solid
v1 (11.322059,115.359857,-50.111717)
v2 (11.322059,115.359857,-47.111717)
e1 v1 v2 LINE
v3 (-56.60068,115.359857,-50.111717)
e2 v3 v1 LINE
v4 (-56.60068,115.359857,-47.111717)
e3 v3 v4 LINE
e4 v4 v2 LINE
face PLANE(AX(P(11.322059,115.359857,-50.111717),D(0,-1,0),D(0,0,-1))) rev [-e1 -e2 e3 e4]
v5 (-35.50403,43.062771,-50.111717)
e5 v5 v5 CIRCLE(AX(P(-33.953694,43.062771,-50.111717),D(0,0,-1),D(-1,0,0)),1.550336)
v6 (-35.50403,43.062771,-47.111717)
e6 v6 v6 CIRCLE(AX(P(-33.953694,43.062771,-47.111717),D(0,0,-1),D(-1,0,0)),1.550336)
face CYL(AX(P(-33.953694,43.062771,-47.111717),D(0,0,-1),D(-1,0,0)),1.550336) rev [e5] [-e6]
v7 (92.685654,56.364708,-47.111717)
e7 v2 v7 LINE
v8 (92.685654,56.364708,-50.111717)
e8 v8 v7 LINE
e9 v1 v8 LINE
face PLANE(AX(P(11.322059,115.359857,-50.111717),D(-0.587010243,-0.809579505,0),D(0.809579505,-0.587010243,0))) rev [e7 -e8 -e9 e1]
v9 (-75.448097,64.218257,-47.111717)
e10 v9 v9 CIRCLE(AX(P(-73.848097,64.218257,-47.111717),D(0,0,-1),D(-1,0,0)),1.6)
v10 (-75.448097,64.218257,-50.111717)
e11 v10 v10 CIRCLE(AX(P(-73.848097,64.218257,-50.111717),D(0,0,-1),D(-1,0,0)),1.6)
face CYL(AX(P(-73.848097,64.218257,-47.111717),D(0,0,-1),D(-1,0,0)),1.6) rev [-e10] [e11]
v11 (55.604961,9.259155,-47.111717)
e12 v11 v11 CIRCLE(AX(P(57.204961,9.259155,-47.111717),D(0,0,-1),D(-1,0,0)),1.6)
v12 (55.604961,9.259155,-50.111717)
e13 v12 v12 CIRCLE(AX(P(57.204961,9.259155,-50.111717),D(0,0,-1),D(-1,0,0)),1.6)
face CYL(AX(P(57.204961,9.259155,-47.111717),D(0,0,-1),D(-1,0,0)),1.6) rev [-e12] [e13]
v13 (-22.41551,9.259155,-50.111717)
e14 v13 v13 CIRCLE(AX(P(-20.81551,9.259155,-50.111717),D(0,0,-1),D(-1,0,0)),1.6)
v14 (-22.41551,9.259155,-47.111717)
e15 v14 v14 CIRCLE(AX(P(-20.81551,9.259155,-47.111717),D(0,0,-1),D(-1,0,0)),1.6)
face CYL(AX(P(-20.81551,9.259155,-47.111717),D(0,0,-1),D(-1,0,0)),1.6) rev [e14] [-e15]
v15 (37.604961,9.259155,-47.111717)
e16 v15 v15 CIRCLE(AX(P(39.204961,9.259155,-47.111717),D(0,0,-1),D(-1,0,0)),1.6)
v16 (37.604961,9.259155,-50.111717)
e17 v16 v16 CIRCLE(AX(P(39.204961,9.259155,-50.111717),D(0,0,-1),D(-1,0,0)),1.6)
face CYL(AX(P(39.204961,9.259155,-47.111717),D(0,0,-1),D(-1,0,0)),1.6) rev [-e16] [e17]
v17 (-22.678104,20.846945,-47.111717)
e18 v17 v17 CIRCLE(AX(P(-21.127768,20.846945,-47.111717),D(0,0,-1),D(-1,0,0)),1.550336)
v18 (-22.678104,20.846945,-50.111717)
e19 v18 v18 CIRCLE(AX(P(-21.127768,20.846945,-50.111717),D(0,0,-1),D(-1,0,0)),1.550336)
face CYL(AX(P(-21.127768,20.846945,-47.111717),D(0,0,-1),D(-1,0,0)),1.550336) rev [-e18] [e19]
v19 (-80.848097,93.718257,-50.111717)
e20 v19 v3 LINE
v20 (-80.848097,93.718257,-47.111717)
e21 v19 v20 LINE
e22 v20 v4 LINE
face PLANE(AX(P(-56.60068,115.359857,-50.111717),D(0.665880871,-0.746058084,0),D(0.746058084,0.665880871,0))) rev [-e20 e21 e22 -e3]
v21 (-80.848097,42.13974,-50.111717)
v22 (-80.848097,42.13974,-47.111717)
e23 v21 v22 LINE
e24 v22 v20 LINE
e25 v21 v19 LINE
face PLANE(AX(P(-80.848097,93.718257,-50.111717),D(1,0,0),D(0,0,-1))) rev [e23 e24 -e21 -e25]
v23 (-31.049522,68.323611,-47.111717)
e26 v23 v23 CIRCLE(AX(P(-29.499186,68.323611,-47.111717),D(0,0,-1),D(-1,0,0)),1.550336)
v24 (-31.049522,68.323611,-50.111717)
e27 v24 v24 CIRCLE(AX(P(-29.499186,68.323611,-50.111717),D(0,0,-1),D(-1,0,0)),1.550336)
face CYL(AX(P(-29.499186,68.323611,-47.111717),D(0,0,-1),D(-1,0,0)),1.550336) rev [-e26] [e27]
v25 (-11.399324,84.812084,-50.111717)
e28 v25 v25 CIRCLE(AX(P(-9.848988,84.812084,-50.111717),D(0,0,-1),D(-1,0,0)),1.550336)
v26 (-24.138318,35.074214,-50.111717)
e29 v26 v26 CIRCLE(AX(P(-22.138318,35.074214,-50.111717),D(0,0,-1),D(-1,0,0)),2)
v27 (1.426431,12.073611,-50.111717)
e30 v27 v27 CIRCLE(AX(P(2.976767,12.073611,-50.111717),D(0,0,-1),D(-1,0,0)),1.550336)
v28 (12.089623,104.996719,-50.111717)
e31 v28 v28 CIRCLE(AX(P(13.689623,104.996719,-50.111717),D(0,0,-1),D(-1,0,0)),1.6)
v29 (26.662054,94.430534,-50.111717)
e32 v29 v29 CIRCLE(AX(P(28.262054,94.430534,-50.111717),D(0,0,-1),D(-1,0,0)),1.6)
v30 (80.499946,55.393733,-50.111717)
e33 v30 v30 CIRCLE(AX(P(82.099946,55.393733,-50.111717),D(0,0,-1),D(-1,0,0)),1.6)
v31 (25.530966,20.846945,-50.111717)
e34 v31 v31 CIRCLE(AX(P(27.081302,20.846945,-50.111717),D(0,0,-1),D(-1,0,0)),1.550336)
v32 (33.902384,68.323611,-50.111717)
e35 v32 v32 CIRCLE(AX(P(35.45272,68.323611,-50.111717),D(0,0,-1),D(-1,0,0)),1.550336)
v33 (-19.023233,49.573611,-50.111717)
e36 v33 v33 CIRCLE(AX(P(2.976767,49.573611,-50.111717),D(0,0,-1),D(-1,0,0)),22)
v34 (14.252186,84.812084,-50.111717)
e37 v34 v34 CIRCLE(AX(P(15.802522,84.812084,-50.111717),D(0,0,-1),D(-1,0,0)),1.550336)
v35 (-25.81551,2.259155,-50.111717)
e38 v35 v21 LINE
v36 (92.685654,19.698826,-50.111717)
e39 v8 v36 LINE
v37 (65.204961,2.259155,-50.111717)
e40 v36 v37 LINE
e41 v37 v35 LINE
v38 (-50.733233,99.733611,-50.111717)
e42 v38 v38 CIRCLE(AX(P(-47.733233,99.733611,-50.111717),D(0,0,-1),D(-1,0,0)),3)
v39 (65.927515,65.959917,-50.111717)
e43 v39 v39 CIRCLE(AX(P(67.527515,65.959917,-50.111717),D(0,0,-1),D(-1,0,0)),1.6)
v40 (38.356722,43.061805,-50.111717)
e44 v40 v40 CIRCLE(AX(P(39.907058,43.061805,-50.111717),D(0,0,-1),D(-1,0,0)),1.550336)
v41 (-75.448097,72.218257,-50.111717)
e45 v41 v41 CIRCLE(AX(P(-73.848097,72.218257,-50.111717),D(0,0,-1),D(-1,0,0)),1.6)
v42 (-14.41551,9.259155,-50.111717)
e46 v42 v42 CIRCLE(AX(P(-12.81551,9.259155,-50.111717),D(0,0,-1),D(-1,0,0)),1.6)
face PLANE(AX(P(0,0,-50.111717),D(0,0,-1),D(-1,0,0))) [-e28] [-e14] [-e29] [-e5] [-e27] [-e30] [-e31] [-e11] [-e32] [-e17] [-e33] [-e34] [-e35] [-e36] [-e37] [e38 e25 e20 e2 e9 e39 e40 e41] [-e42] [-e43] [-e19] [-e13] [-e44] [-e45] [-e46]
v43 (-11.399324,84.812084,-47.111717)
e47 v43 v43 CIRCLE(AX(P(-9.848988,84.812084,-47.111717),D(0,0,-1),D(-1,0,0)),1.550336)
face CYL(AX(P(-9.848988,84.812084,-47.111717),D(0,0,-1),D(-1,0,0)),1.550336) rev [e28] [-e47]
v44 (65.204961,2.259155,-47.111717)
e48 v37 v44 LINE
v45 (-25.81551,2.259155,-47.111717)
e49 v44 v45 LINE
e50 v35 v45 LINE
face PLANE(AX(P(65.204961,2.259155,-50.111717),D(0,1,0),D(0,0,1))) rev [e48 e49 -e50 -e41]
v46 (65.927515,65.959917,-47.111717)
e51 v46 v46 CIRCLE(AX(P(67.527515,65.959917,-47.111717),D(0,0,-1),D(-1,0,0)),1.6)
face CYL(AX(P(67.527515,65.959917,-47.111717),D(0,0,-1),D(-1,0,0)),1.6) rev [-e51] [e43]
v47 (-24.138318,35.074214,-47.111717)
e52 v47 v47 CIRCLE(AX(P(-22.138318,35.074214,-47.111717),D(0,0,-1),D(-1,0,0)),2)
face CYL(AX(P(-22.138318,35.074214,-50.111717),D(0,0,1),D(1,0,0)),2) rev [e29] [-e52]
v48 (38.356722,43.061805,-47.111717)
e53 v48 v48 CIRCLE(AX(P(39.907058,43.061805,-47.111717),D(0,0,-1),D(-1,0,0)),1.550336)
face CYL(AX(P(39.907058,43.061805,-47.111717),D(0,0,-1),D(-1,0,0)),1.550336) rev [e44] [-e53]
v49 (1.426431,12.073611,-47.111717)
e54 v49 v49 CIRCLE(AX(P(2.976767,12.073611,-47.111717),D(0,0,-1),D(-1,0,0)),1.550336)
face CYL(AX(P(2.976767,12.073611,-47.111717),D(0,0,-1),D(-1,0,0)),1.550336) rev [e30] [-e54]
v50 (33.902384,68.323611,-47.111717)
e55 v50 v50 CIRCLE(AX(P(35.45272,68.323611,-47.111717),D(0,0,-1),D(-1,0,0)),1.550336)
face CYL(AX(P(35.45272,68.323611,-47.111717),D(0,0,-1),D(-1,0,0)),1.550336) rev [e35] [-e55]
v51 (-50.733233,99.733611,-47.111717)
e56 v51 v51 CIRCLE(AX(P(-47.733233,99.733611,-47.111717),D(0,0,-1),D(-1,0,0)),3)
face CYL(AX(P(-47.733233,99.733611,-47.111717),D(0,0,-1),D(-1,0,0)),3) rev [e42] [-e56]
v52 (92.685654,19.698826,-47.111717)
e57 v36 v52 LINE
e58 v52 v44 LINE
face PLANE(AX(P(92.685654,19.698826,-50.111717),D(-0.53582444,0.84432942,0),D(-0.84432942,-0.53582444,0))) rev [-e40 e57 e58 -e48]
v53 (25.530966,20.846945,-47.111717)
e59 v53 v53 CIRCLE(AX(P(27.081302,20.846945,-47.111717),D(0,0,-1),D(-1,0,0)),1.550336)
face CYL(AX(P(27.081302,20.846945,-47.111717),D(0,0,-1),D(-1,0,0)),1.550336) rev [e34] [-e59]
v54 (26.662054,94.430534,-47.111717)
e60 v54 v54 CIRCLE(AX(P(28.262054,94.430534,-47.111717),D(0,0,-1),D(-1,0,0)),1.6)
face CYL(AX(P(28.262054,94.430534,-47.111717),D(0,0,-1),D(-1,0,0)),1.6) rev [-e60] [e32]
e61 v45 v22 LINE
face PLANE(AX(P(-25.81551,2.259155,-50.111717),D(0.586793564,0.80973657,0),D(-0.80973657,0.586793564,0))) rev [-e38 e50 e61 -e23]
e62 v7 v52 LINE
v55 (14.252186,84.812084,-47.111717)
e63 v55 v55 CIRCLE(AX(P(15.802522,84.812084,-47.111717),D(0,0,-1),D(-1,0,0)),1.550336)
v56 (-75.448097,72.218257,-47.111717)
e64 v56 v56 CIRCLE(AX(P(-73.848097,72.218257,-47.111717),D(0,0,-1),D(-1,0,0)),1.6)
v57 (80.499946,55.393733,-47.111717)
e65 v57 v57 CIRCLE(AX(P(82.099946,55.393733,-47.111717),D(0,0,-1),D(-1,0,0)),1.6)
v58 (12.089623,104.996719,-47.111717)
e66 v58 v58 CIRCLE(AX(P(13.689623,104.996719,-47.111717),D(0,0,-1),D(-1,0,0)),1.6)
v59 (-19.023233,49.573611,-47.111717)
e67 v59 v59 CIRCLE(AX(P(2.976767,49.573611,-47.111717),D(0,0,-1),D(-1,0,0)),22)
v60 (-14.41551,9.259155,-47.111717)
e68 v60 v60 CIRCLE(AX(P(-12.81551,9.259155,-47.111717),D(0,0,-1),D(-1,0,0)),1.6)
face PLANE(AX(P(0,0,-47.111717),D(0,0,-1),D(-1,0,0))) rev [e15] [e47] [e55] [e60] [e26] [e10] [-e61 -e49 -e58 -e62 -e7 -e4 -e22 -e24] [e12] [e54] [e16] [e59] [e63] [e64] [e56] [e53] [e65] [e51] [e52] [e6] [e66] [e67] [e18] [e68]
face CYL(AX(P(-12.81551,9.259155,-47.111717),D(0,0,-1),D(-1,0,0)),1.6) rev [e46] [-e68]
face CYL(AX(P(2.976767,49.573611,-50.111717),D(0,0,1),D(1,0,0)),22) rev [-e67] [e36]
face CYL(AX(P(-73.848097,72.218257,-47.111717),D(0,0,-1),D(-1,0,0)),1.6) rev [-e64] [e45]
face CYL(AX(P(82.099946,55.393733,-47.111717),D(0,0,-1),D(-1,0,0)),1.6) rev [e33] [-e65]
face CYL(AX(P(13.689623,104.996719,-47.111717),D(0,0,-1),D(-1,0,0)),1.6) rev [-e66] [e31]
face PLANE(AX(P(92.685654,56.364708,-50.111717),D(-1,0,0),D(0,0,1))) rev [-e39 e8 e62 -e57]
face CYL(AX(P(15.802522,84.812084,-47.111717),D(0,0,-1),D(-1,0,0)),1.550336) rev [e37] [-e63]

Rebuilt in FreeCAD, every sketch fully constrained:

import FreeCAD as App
import Part
import Sketcher

V = App.Vector

doc = App.newDocument("Part")
body = doc.addObject("PartDesign::Body", "Body")

# Sketch on XY plane
sketch1 = doc.addObject("Sketcher::SketchObject", "Sketch")
body.addObject(sketch1)
sketch1.AttachmentSupport = (doc.XY_Plane, [""])
sketch1.MapMode = "FlatFace"
sketch1.AttachmentOffset = App.Placement(V(0, 0, -47.111717), App.Rotation())
sketch1.addGeometry(Part.LineSegment(V(65.2, 2.3, 0), V(-25.8, 2.3, 0)), False)
sketch1.addGeometry(Part.LineSegment(V(-25.8, 2.3, 0), V(-80.8, 42.1, 0)), False)
sketch1.addGeometry(Part.LineSegment(V(-80.8, 42.1, 0), V(-80.8, 93.7, 0)), False)
sketch1.addGeometry(Part.LineSegment(V(-80.8, 93.7, 0), V(-56.6, 115.4, 0)), False)
sketch1.addGeometry(Part.LineSegment(V(-56.6, 115.4, 0), V(11.3, 115.4, 0)), False)
sketch1.addGeometry(Part.LineSegment(V(11.3, 115.4, 0), V(92.7, 56.4, 0)), False)
sketch1.addGeometry(Part.LineSegment(V(92.7, 56.4, 0), V(92.7, 19.7, 0)), False)
sketch1.addGeometry(Part.LineSegment(V(92.7, 19.7, 0), V(65.2, 2.3, 0)), False)
sketch1.addGeometry(Part.Circle(V(-22.1, 35.1, 0), V(0, 0, 1), 2), False)
sketch1.addGeometry(Part.Circle(V(3, 49.6, 0), V(0, 0, 1), 22), False)
sketch1.addConstraint(Sketcher.Constraint("Coincident", 0, 2, 1, 1))
sketch1.addConstraint(Sketcher.Constraint("Coincident", 1, 2, 2, 1))
sketch1.addConstraint(Sketcher.Constraint("Coincident", 2, 2, 3, 1))
sketch1.addConstraint(Sketcher.Constraint("Coincident", 3, 2, 4, 1))
sketch1.addConstraint(Sketcher.Constraint("Coincident", 4, 2, 5, 1))
sketch1.addConstraint(Sketcher.Constraint("Coincident", 5, 2, 6, 1))
sketch1.addConstraint(Sketcher.Constraint("Coincident", 6, 2, 7, 1))
sketch1.addConstraint(Sketcher.Constraint("Coincident", 7, 2, 0, 1))
sketch1.addConstraint(Sketcher.Constraint("Horizontal", 0))
sketch1.addConstraint(Sketcher.Constraint("Vertical", 2))
sketch1.addConstraint(Sketcher.Constraint("Horizontal", 4))
sketch1.addConstraint(Sketcher.Constraint("Vertical", 6))
sketch1.addConstraint(Sketcher.Constraint("Diameter", 8, 4.0))
sketch1.addConstraint(Sketcher.Constraint("Diameter", 9, 44.0))
sketch1.addConstraint(Sketcher.Constraint("DistanceX", 0, 2, 0, 1, 91.020471))
sketch1.addConstraint(Sketcher.Constraint("DistanceX", 4, 1, 4, 2, 67.922739))
sketch1.addConstraint(Sketcher.Constraint("DistanceY", 6, 2, 6, 1, 36.665882))
sketch1.addConstraint(Sketcher.Constraint("DistanceY", 0, 2, 2, 2, 91.459101))
sketch1.addConstraint(Sketcher.Constraint("DistanceY", 2, 2, 3, 2, 21.6416))
sketch1.addConstraint(Sketcher.Constraint("Distance", 1, 67.963569))
sketch1.addConstraint(Sketcher.Constraint("Distance", 3, 32.500709))
sketch1.addConstraint(Sketcher.Constraint("Distance", 7, 32.54736))
sketch1.addConstraint(Sketcher.Constraint("DistanceY", 2, 1, 2, 2, 51.578517))
sketch1.addConstraint(Sketcher.Constraint("DistanceY", -1, 1, 9, 3, 49.573611))
sketch1.addConstraint(Sketcher.Constraint("DistanceX", 0, 2, -1, 1, 25.81551))
sketch1.addConstraint(Sketcher.Constraint("DistanceY", -1, 1, 1, 2, 42.13974))
sketch1.addConstraint(Sketcher.Constraint("DistanceY", 0, 2, 8, 3, 32.815059))
sketch1.addConstraint(Sketcher.Constraint("DistanceX", 1, 2, 8, 3, 58.70978))
sketch1.addConstraint(Sketcher.Constraint("DistanceX", 9, 3, 4, 2, 8.345292))
sketch1.addConstraint(Sketcher.Constraint("DistanceY", 5, 2, 4, 2, 58.995149))
pad1 = doc.addObject("PartDesign::Pad", "Pad")
body.addObject(pad1)
pad1.Profile = sketch1
pad1.Length = 3
pad1.Reversed = True

# Sketch on XY plane
sketch2 = doc.addObject("Sketcher::SketchObject", "Sketch001")
body.addObject(sketch2)
sketch2.AttachmentSupport = (doc.XY_Plane, [""])
sketch2.MapMode = "FlatFace"
sketch2.AttachmentOffset = App.Placement(V(0, 0, -50.111717), App.Rotation())
sketch2.addGeometry(Part.Circle(V(-47.7, 99.7, 0), V(0, 0, 1), 3), False)
sketch2.addConstraint(Sketcher.Constraint("Diameter", 0, 6.0))
sketch2.addConstraint(Sketcher.Constraint("DistanceY", -1, 1, 0, 3, 99.733611))
sketch2.addConstraint(Sketcher.Constraint("DistanceX", 0, 3, -1, 1, 47.733233))
pocket1 = doc.addObject("PartDesign::Pocket", "Pocket")
body.addObject(pocket1)
pocket1.Profile = sketch2
pocket1.Length = 3
pocket1.Reversed = True

# Sketch on XY plane
sketch3 = doc.addObject("Sketcher::SketchObject", "Sketch002")
body.addObject(sketch3)
sketch3.AttachmentSupport = (doc.XY_Plane, [""])
sketch3.MapMode = "FlatFace"
sketch3.AttachmentOffset = App.Placement(V(0, 0, -50.111717), App.Rotation())
sketch3.addGeometry(Part.Circle(V(-21.1, 20.8, 0), V(0, 0, 1), 1.6), False)
sketch3.addGeometry(Part.Circle(V(3, 12.1, 0), V(0, 0, 1), 1.6), False)
sketch3.addGeometry(Part.Circle(V(27.1, 20.8, 0), V(0, 0, 1), 1.6), False)
sketch3.addGeometry(Part.Circle(V(39.9, 43.1, 0), V(0, 0, 1), 1.6), False)
sketch3.addGeometry(Part.Circle(V(35.5, 68.3, 0), V(0, 0, 1), 1.6), False)
sketch3.addGeometry(Part.Circle(V(15.8, 84.8, 0), V(0, 0, 1), 1.6), False)
sketch3.addGeometry(Part.Circle(V(-9.8, 84.8, 0), V(0, 0, 1), 1.6), False)
sketch3.addGeometry(Part.Circle(V(-29.5, 68.3, 0), V(0, 0, 1), 1.6), False)
sketch3.addGeometry(Part.Circle(V(-34, 43.1, 0), V(0, 0, 1), 1.6), False)
sketch3.addGeometry(Part.Circle(V(57.2, 9.3, 0), V(0, 0, 1), 1.6), False)
sketch3.addGeometry(Part.Circle(V(39.2, 9.3, 0), V(0, 0, 1), 1.6), False)
sketch3.addConstraint(Sketcher.Constraint("Equal", 0, 1))
sketch3.addConstraint(Sketcher.Constraint("Equal", 1, 2))
sketch3.addConstraint(Sketcher.Constraint("Equal", 2, 3))
sketch3.addConstraint(Sketcher.Constraint("Equal", 3, 4))
sketch3.addConstraint(Sketcher.Constraint("Equal", 4, 5))
sketch3.addConstraint(Sketcher.Constraint("Equal", 5, 6))
sketch3.addConstraint(Sketcher.Constraint("Equal", 6, 7))
sketch3.addConstraint(Sketcher.Constraint("Equal", 7, 8))
sketch3.addConstraint(Sketcher.Constraint("Equal", 9, 10))
sketch3.addConstraint(Sketcher.Constraint("Horizontal", 0, 3, 2, 3))
sketch3.addConstraint(Sketcher.Constraint("Horizontal", 5, 3, 6, 3))
sketch3.addConstraint(Sketcher.Constraint("Horizontal", 4, 3, 7, 3))
sketch3.addConstraint(Sketcher.Constraint("Horizontal", 9, 3, 10, 3))
sketch3.addConstraint(Sketcher.Constraint("Diameter", 9, 3.2))
sketch3.addConstraint(Sketcher.Constraint("DistanceX", 10, 3, 9, 3, 18.0))
sketch3.addConstraint(Sketcher.Constraint("DistanceY", 1, 3, 4, 3, 56.25))
sketch3.addConstraint(Sketcher.Constraint("Diameter", 0, 3.100672))
sketch3.addConstraint(Sketcher.Constraint("DistanceX", 0, 3, -1, 1, 21.127768))
sketch3.addConstraint(Sketcher.Constraint("DistanceY", -1, 1, 1, 3, 12.073611))
sketch3.addConstraint(Sketcher.Constraint("DistanceX", -1, 1, 4, 3, 35.45272))
sketch3.addConstraint(Sketcher.Constraint("DistanceX", 6, 3, -1, 1, 9.848988))
sketch3.addConstraint(Sketcher.Constraint("DistanceY", -1, 1, 8, 3, 43.062771))
sketch3.addConstraint(Sketcher.Constraint("DistanceX", -1, 1, 9, 3, 57.204961))
sketch3.addConstraint(Sketcher.Constraint("DistanceX", 0, 3, 2, 3, 48.209071))
sketch3.addConstraint(Sketcher.Constraint("DistanceY", 2, 3, 3, 3, 22.21486))
sketch3.addConstraint(Sketcher.Constraint("DistanceX", 1, 3, 3, 3, 36.930291))
sketch3.addConstraint(Sketcher.Constraint("DistanceX", 4, 3, 3, 3, 4.454338))
sketch3.addConstraint(Sketcher.Constraint("DistanceY", 3, 3, 5, 3, 41.75028))
sketch3.addConstraint(Sketcher.Constraint("DistanceX", 5, 3, 2, 3, 11.27878))
sketch3.addConstraint(Sketcher.Constraint("DistanceX", 7, 3, 5, 3, 45.301708))
sketch3.addConstraint(Sketcher.Constraint("DistanceX", 8, 3, 7, 3, 4.454509))
sketch3.addConstraint(Sketcher.Constraint("DistanceY", 9, 3, 2, 3, 11.587789))
sketch3.addConstraint(Sketcher.Constraint("DistanceY", -1, 1, 0, 3, 20.846945))
pocket2 = doc.addObject("PartDesign::Pocket", "Pocket001")
body.addObject(pocket2)
pocket2.Profile = sketch3
pocket2.Length = 3
pocket2.Reversed = True

# Sketch on XY plane
sketch4 = doc.addObject("Sketcher::SketchObject", "Sketch003")
body.addObject(sketch4)
sketch4.AttachmentSupport = (doc.XY_Plane, [""])
sketch4.MapMode = "FlatFace"
sketch4.AttachmentOffset = App.Placement(V(0, 0, -50.111717), App.Rotation())
sketch4.addGeometry(Part.Circle(V(-73.8, 72.2, 0), V(0, 0, 1), 1.6), False)
sketch4.addGeometry(Part.Circle(V(-73.8, 64.2, 0), V(0, 0, 1), 1.6), False)
sketch4.addConstraint(Sketcher.Constraint("Equal", 0, 1))
sketch4.addConstraint(Sketcher.Constraint("Vertical", 0, 3, 1, 3))
sketch4.addConstraint(Sketcher.Constraint("Diameter", 0, 3.2))
sketch4.addConstraint(Sketcher.Constraint("DistanceY", 1, 3, 0, 3, 8.0))
sketch4.addConstraint(Sketcher.Constraint("DistanceX", 0, 3, -1, 1, 73.848097))
sketch4.addConstraint(Sketcher.Constraint("DistanceY", -1, 1, 0, 3, 72.218257))
pocket3 = doc.addObject("PartDesign::Pocket", "Pocket002")
body.addObject(pocket3)
pocket3.Profile = sketch4
pocket3.Length = 3
pocket3.Reversed = True

# Sketch on XY plane
sketch5 = doc.addObject("Sketcher::SketchObject", "Sketch004")
body.addObject(sketch5)
sketch5.AttachmentSupport = (doc.XY_Plane, [""])
sketch5.MapMode = "FlatFace"
sketch5.AttachmentOffset = App.Placement(V(0, 0, -50.111717), App.Rotation())
sketch5.addGeometry(Part.Circle(V(82.1, 55.4, 0), V(0, 0, 1), 1.6), False)
sketch5.addGeometry(Part.Circle(V(67.5, 66, 0), V(0, 0, 1), 1.6), False)
sketch5.addGeometry(Part.Circle(V(28.3, 94.4, 0), V(0, 0, 1), 1.6), False)
sketch5.addGeometry(Part.Circle(V(13.7, 105, 0), V(0, 0, 1), 1.6), False)
sketch5.addConstraint(Sketcher.Constraint("Equal", 0, 1))
sketch5.addConstraint(Sketcher.Constraint("Equal", 1, 2))
sketch5.addConstraint(Sketcher.Constraint("Equal", 2, 3))
sketch5.addConstraint(Sketcher.Constraint("Diameter", 0, 3.2))
sketch5.addConstraint(Sketcher.Constraint("DistanceY", 0, 3, 2, 3, 39.036801))
sketch5.addConstraint(Sketcher.Constraint("DistanceY", 1, 3, 3, 3, 39.036801))
sketch5.addConstraint(Sketcher.Constraint("DistanceY", -1, 1, 3, 3, 104.996719))
sketch5.addConstraint(Sketcher.Constraint("DistanceX", 1, 3, 0, 3, 14.572431))
sketch5.addConstraint(Sketcher.Constraint("DistanceX", 2, 3, 1, 3, 39.265461))
sketch5.addConstraint(Sketcher.Constraint("DistanceX", 3, 3, 2, 3, 14.572431))
sketch5.addConstraint(Sketcher.Constraint("DistanceX", -1, 1, 0, 3, 82.099946))
sketch5.addConstraint(Sketcher.Constraint("DistanceY", -1, 1, 0, 3, 55.393733))
pocket4 = doc.addObject("PartDesign::Pocket", "Pocket003")
body.addObject(pocket4)
pocket4.Profile = sketch5
pocket4.Length = 3
pocket4.Reversed = True

# Sketch on XY plane
sketch6 = doc.addObject("Sketcher::SketchObject", "Sketch005")
body.addObject(sketch6)
sketch6.AttachmentSupport = (doc.XY_Plane, [""])
sketch6.MapMode = "FlatFace"
sketch6.AttachmentOffset = App.Placement(V(0, 0, -50.111717), App.Rotation())
sketch6.addGeometry(Part.Circle(V(-12.8, 9.3, 0), V(0, 0, 1), 1.6), False)
sketch6.addGeometry(Part.Circle(V(-20.8, 9.3, 0), V(0, 0, 1), 1.6), False)
sketch6.addConstraint(Sketcher.Constraint("Equal", 0, 1))
sketch6.addConstraint(Sketcher.Constraint("Horizontal", 0, 3, 1, 3))
sketch6.addConstraint(Sketcher.Constraint("Diameter", 0, 3.2))
sketch6.addConstraint(Sketcher.Constraint("DistanceX", 1, 3, 0, 3, 8.0))
sketch6.addConstraint(Sketcher.Constraint("DistanceX", 0, 3, -1, 1, 12.81551))
sketch6.addConstraint(Sketcher.Constraint("DistanceY", -1, 1, 0, 3, 9.259155))
pocket5 = doc.addObject("PartDesign::Pocket", "Pocket004")
body.addObject(pocket5)
pocket5.Profile = sketch6
pocket5.Type = "ThroughAll"
pocket5.Reversed = True

doc.recompute()
